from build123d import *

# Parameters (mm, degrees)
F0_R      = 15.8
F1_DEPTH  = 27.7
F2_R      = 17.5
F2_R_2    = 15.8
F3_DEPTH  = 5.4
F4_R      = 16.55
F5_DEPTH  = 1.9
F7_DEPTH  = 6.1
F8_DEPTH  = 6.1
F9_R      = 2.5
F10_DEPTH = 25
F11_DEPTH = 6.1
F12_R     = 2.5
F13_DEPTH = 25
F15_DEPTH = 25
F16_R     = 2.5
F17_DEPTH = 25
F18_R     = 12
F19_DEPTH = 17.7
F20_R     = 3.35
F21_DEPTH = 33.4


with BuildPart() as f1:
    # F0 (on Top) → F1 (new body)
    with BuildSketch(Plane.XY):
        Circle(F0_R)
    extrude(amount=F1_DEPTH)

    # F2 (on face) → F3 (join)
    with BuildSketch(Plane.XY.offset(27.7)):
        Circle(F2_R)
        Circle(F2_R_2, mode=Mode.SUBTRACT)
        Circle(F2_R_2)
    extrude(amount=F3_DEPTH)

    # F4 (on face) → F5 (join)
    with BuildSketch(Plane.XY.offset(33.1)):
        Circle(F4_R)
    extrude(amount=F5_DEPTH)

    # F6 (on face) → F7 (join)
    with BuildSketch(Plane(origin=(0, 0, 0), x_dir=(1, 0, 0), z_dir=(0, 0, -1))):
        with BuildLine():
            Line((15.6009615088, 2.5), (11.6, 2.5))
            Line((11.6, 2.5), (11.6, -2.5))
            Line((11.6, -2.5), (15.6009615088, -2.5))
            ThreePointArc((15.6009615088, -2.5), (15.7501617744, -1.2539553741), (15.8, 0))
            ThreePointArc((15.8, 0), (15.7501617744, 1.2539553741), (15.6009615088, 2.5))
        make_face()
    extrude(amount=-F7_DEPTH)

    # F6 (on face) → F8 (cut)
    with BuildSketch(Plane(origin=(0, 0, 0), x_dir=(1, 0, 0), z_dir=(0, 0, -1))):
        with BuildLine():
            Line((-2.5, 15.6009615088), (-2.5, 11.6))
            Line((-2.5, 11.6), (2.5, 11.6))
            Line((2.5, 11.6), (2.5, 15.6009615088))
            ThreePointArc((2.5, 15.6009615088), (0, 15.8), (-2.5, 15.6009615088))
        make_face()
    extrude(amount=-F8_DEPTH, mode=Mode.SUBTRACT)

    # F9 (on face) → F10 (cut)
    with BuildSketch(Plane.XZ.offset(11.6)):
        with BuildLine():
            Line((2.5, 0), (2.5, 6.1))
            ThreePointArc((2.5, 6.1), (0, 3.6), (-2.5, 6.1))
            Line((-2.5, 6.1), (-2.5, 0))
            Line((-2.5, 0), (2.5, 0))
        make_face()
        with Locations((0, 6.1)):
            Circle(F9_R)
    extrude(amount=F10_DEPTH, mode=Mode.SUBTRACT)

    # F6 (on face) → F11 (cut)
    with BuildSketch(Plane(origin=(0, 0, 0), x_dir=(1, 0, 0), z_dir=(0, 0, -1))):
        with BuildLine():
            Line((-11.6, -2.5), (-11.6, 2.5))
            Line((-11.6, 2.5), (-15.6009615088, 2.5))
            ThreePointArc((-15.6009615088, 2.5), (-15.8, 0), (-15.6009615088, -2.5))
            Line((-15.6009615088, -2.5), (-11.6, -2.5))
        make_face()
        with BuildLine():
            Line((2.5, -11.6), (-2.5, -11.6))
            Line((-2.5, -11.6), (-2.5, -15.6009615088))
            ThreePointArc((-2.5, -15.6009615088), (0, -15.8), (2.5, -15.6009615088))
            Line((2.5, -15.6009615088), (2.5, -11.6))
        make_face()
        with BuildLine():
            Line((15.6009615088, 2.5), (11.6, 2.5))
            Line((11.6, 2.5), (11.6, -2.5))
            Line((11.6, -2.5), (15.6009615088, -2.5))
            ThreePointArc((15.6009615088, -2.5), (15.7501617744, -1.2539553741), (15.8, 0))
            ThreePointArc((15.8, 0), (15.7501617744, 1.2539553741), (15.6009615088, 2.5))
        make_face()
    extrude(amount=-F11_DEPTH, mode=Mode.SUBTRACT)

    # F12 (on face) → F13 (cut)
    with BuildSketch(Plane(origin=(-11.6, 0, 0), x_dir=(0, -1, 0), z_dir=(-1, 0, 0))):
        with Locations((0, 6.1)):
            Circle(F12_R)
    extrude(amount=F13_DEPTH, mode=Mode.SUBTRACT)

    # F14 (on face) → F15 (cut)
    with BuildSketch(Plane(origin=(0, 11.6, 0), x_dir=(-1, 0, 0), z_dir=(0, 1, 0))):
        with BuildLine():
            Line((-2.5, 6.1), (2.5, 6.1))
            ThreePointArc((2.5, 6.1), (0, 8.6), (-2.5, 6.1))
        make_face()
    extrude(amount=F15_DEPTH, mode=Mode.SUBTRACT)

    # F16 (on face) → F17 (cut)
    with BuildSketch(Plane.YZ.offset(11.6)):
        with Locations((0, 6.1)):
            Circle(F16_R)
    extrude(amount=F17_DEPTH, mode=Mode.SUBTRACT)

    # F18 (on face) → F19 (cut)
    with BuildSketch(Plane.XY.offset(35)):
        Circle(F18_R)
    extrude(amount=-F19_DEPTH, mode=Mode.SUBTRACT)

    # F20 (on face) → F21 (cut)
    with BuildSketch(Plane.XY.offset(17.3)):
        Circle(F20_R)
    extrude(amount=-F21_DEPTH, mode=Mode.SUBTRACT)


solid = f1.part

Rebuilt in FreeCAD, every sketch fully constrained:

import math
import FreeCAD as App
import Part
import Sketcher
from FreeCAD import Vector
Q = App.Units.Quantity

doc = App.newDocument("Part")
body = doc.addObject("PartDesign::Body", "Body")

sketch1 = doc.addObject("Sketcher::SketchObject", "Sketch")
body.addObject(sketch1)
sketch1.AttachmentSupport = (doc.XY_Plane, [""])
sketch1.MapMode = "FlatFace"
sketch1.addGeometry(Part.Circle(Vector(0, 0, 0), Vector(0, 0, 1), 15.8), False)
sketch1.addConstraint([
    Sketcher.Constraint("Coincident", 0, 3, -1, 1),
    Sketcher.Constraint("Diameter", 0, Q("31.6 mm")),
])
pad1 = doc.addObject("PartDesign::Pad", "Pad")
body.addObject(pad1)
pad1.Profile = sketch1
pad1.Length = 27.7

sketch2 = doc.addObject("Sketcher::SketchObject", "Sketch001")
body.addObject(sketch2)
sketch2.AttachmentSupport = (doc.XY_Plane, [""])
sketch2.MapMode = "FlatFace"
sketch2.AttachmentOffset = App.Placement(Vector(0, 0, 27.7), App.Rotation())
sketch2.addGeometry(Part.Circle(Vector(0, 0, 0), Vector(0, 0, 1), 17.5), False)
sketch2.addConstraint([
    Sketcher.Constraint("Coincident", 0, 3, -1, 1),
    Sketcher.Constraint("Diameter", 0, Q("35 mm")),
])
pad2 = doc.addObject("PartDesign::Pad", "Pad001")
body.addObject(pad2)
pad2.Profile = sketch2
pad2.Length = 5.4

sketch3 = doc.addObject("Sketcher::SketchObject", "Sketch002")
body.addObject(sketch3)
sketch3.AttachmentSupport = (doc.XY_Plane, [""])
sketch3.MapMode = "FlatFace"
sketch3.AttachmentOffset = App.Placement(Vector(0, 0, 33.1), App.Rotation())
sketch3.addGeometry(Part.Circle(Vector(0, 0, 0), Vector(0, 0, 1), 16.55), False)
sketch3.addConstraint([
    Sketcher.Constraint("Coincident", 0, 3, -1, 1),
    Sketcher.Constraint("Diameter", 0, Q("33.1 mm")),
])
pad3 = doc.addObject("PartDesign::Pad", "Pad002")
body.addObject(pad3)
pad3.Profile = sketch3
pad3.Length = 1.9

sketch4 = doc.addObject("Sketcher::SketchObject", "Sketch003")
body.addObject(sketch4)
sketch4.AttachmentSupport = (doc.XY_Plane, [""])
sketch4.MapMode = "FlatFace"
sketch4.addGeometry([
    Part.LineSegment(Vector(15.600962, -2.5, 0), Vector(11.6, -2.5, 0)),
    Part.LineSegment(Vector(11.6, -2.5, 0), Vector(11.6, 2.5, 0)),
    Part.LineSegment(Vector(11.6, 2.5, 0), Vector(15.600962, 2.5, 0)),
    Part.ArcOfCircle(Part.Circle(Vector(0, 0, 0), Vector(0, 0, 1), 15.8), math.radians(0), math.radians(9.104049)),
    Part.ArcOfCircle(Part.Circle(Vector(0, 0, 0), Vector(0, 0, 1), 15.8), math.radians(-9.104049), math.radians(0)),
], False)
sketch4.addConstraint([
    Sketcher.Constraint("Coincident", 0, 2, 1, 1),
    Sketcher.Constraint("Coincident", 1, 2, 2, 1),
    Sketcher.Constraint("Coincident", 2, 2, 3, 2),
    Sketcher.Constraint("Tangent", 3, 1, 4, 2),
    Sketcher.Constraint("Coincident", 4, 1, 0, 1),
    Sketcher.Constraint("Horizontal", 0),
    Sketcher.Constraint("Vertical", 1),
    Sketcher.Constraint("Horizontal", 2),
    Sketcher.Constraint("Coincident", 3, 3, -1, 1),
    Sketcher.Constraint("Equal", 3, 4),
    Sketcher.Constraint("PointOnObject", 3, 1, -1),
    Sketcher.Constraint("Vertical", 2, 2, 4, 1),
    Sketcher.Constraint("Radius", 3, Q("15.8 mm")),
    Sketcher.Constraint("DistanceY", 1, 1, 1, 2, Q("5 mm")),
    Sketcher.Constraint("DistanceX", -1, 1, 0, 2, Q("11.6 mm")),
])
pad4 = doc.addObject("PartDesign::Pad", "Pad003")
body.addObject(pad4)
pad4.Profile = sketch4
pad4.Length = 6.1

sketch5 = doc.addObject("Sketcher::SketchObject", "Sketch004")
body.addObject(sketch5)
sketch5.AttachmentSupport = (doc.XY_Plane, [""])
sketch5.MapMode = "FlatFace"
sketch5.addGeometry([
    Part.LineSegment(Vector(-2.5, -15.600962, 0), Vector(-2.5, -11.6, 0)),
    Part.LineSegment(Vector(-2.5, -11.6, 0), Vector(2.5, -11.6, 0)),
    Part.LineSegment(Vector(2.5, -11.6, 0), Vector(2.5, -15.600962, 0)),
    Part.ArcOfCircle(Part.Circle(Vector(0, 0, 0), Vector(0, 0, 1), 15.8), math.radians(-99.104049), math.radians(-80.895951)),
], False)
sketch5.addConstraint([
    Sketcher.Constraint("Coincident", 0, 2, 1, 1),
    Sketcher.Constraint("Coincident", 1, 2, 2, 1),
    Sketcher.Constraint("Coincident", 2, 2, 3, 2),
    Sketcher.Constraint("Coincident", 3, 1, 0, 1),
    Sketcher.Constraint("Vertical", 0),
    Sketcher.Constraint("Horizontal", 1),
    Sketcher.Constraint("Vertical", 2),
    Sketcher.Constraint("Coincident", 3, 3, -1, 1),
    Sketcher.Constraint("Horizontal", 2, 2, 3, 1),
    Sketcher.Constraint("Radius", 3, Q("15.8 mm")),
    Sketcher.Constraint("DistanceX", 1, 1, 1, 2, Q("5 mm")),
    Sketcher.Constraint("DistanceY", 0, 2, -1, 1, Q("11.6 mm")),
])
pocket1 = doc.addObject("PartDesign::Pocket", "Pocket")
body.addObject(pocket1)
pocket1.Profile = sketch5
pocket1.Length = 6.1
pocket1.Reversed = True

sketch6 = doc.addObject("Sketcher::SketchObject", "Sketch005")
body.addObject(sketch6)
sketch6.AttachmentSupport = (doc.XZ_Plane, [""])
sketch6.MapMode = "FlatFace"
sketch6.AttachmentOffset = App.Placement(Vector(0, 0, 11.6), App.Rotation())
sketch6.addGeometry([
    Part.LineSegment(Vector(2.5, 0, 0), Vector(2.5, 6.1, 0)),
    Part.ArcOfCircle(Part.Circle(Vector(0, 6.1, 0), Vector(0, 0, 1), 2.5), math.radians(0), math.radians(180)),
    Part.LineSegment(Vector(-2.5, 6.1, 0), Vector(-2.5, 0, 0)),
    Part.LineSegment(Vector(-2.5, 0, 0), Vector(2.5, 0, 0)),
], False)
sketch6.addConstraint([
    Sketcher.Constraint("Tangent", 0, 2, 1, 1),
    Sketcher.Constraint("Tangent", 1, 2, 2, 1),
    Sketcher.Constraint("Coincident", 2, 2, 3, 1),
    Sketcher.Constraint("Coincident", 3, 2, 0, 1),
    Sketcher.Constraint("Vertical", 0),
    Sketcher.Constraint("Vertical", 2),
    Sketcher.Constraint("Horizontal", 3),
    Sketcher.Constraint("Symmetric", 2, 2, 3, 2, -1, 1),
    Sketcher.Constraint("Radius", 1, Q("2.5 mm")),
    Sketcher.Constraint("DistanceY", 0, 1, 0, 2, Q("6.1 mm")),
])
pocket2 = doc.addObject("PartDesign::Pocket", "Pocket001")
body.addObject(pocket2)
pocket2.Profile = sketch6
pocket2.Length = 25
pocket2.Reversed = True

sketch7 = doc.addObject("Sketcher::SketchObject", "Sketch006")
body.addObject(sketch7)
sketch7.AttachmentSupport = (doc.XY_Plane, [""])
sketch7.MapMode = "FlatFace"
sketch7.addGeometry([
    Part.LineSegment(Vector(-11.6, 2.5, 0), Vector(-11.6, -2.5, 0)),
    Part.LineSegment(Vector(-11.6, -2.5, 0), Vector(-15.600962, -2.5, 0)),
    Part.ArcOfCircle(Part.Circle(Vector(0, 0, 0), Vector(0, 0, 1), 15.8), math.radians(170.895951), math.radians(189.104049)),
    Part.LineSegment(Vector(-15.600962, 2.5, 0), Vector(-11.6, 2.5, 0)),
    Part.LineSegment(Vector(2.5, 11.6, 0), Vector(-2.5, 11.6, 0)),
    Part.LineSegment(Vector(-2.5, 11.6, 0), Vector(-2.5, 15.600962, 0)),
    Part.ArcOfCircle(Part.Circle(Vector(0, 0, 0), Vector(0, 0, 1), 15.8), math.radians(80.895951), math.radians(99.104049)),
    Part.LineSegment(Vector(2.5, 15.600962, 0), Vector(2.5, 11.6, 0)),
    Part.LineSegment(Vector(15.600962, -2.5, 0), Vector(11.6, -2.5, 0)),
    Part.LineSegment(Vector(11.6, -2.5, 0), Vector(11.6, 2.5, 0)),
    Part.LineSegment(Vector(11.6, 2.5, 0), Vector(15.600962, 2.5, 0)),
    Part.ArcOfCircle(Part.Circle(Vector(0, 0, 0), Vector(0, 0, 1), 15.8), math.radians(0), math.radians(9.104049)),
    Part.ArcOfCircle(Part.Circle(Vector(0, 0, 0), Vector(0, 0, 1), 15.8), math.radians(-9.104049), math.radians(0)),
], False)
sketch7.addConstraint([
    Sketcher.Constraint("Coincident", 0, 2, 1, 1),
    Sketcher.Constraint("Coincident", 1, 2, 2, 2),
    Sketcher.Constraint("Coincident", 2, 1, 3, 1),
    Sketcher.Constraint("Coincident", 3, 2, 0, 1),
    Sketcher.Constraint("Coincident", 4, 2, 5, 1),
    Sketcher.Constraint("Coincident", 5, 2, 6, 2),
    Sketcher.Constraint("Coincident", 6, 1, 7, 1),
    Sketcher.Constraint("Coincident", 7, 2, 4, 1),
    Sketcher.Constraint("Coincident", 8, 2, 9, 1),
    Sketcher.Constraint("Coincident", 9, 2, 10, 1),
    Sketcher.Constraint("Coincident", 10, 2, 11, 2),
    Sketcher.Constraint("Tangent", 11, 1, 12, 2),
    Sketcher.Constraint("Coincident", 12, 1, 8, 1),
    Sketcher.Constraint("Vertical", 0),
    Sketcher.Constraint("Horizontal", 1),
    Sketcher.Constraint("Horizontal", 3),
    Sketcher.Constraint("Horizontal", 4),
    Sketcher.Constraint("Vertical", 5),
    Sketcher.Constraint("Vertical", 7),
    Sketcher.Constraint("Horizontal", 8),
    Sketcher.Constraint("Vertical", 9),
    Sketcher.Constraint("Horizontal", 10),
    Sketcher.Constraint("Coincident", 2, 3, -1, 1),
    Sketcher.Constraint("Coincident", 6, 3, -1, 1),
    Sketcher.Constraint("Coincident", 11, 3, -1, 1),
    Sketcher.Constraint("Equal", 2, 6),
    Sketcher.Constraint("Equal", 6, 11),
    Sketcher.Constraint("Equal", 11, 12),
    Sketcher.Constraint("Symmetric", 3, 2, 8, 2, -1, 1),
    Sketcher.Constraint("PointOnObject", 11, 1, -1),
    Sketcher.Constraint("Horizontal", 5, 2, 6, 1),
    Sketcher.Constraint("Horizontal", 1, 2, 8, 2),
    Sketcher.Constraint("Horizontal", 3, 2, 9, 2),
    Sketcher.Constraint("Equal", 4, 0),
    Sketcher.Constraint("Equal", 10, 5),
    Sketcher.Constraint("Radius", 2, Q("15.8 mm")),
    Sketcher.Constraint("DistanceX", 4, 2, 4, 1, Q("5 mm")),
    Sketcher.Constraint("DistanceX", 0, 2, -1, 1, Q("11.6 mm")),
])
pocket3 = doc.addObject("PartDesign::Pocket", "Pocket002")
body.addObject(pocket3)
pocket3.Profile = sketch7
pocket3.Length = 6.1
pocket3.Reversed = True

sketch8 = doc.addObject("Sketcher::SketchObject", "Sketch007")
body.addObject(sketch8)
sketch8.AttachmentSupport = (doc.YZ_Plane, [""])
sketch8.MapMode = "FlatFace"
sketch8.AttachmentOffset = App.Placement(Vector(0, 0, -11.6), App.Rotation())
sketch8.addGeometry(Part.Circle(Vector(0, 6.1, 0), Vector(0, 0, 1), 2.5), False)
sketch8.addConstraint([
    Sketcher.Constraint("PointOnObject", 0, 3, -2),
    Sketcher.Constraint("Diameter", 0, Q("5 mm")),
    Sketcher.Constraint("DistanceY", -1, 1, 0, 3, Q("6.1 mm")),
])
pocket4 = doc.addObject("PartDesign::Pocket", "Pocket003")
body.addObject(pocket4)
pocket4.Profile = sketch8
pocket4.Length = 25

sketch9 = doc.addObject("Sketcher::SketchObject", "Sketch008")
body.addObject(sketch9)
sketch9.AttachmentSupport = (doc.XZ_Plane, [""])
sketch9.MapMode = "FlatFace"
sketch9.AttachmentOffset = App.Placement(Vector(0, 0, -11.6), App.Rotation())
sketch9.addGeometry([
    Part.LineSegment(Vector(2.5, 6.1, 0), Vector(-2.5, 6.1, 0)),
    Part.ArcOfCircle(Part.Circle(Vector(0, 6.1, 0), Vector(0, 0, 1), 2.5), math.radians(0), math.radians(180)),
], False)
sketch9.addConstraint([
    Sketcher.Constraint("Coincident", 0, 1, 1, 1),
    Sketcher.Constraint("Coincident", 1, 2, 0, 2),
    Sketcher.Constraint("Horizontal", 0),
    Sketcher.Constraint("PointOnObject", 1, 3, -2),
    Sketcher.Constraint("Horizontal", 1, 3, 0, 1),
    Sketcher.Constraint("Radius", 1, Q("2.5 mm")),
    Sketcher.Constraint("DistanceY", -1, 1, 1, 3, Q("6.1 mm")),
])
pocket5 = doc.addObject("PartDesign::Pocket", "Pocket004")
body.addObject(pocket5)
pocket5.Profile = sketch9
pocket5.Length = 25

sketch10 = doc.addObject("Sketcher::SketchObject", "Sketch009")
body.addObject(sketch10)
sketch10.AttachmentSupport = (doc.YZ_Plane, [""])
sketch10.MapMode = "FlatFace"
sketch10.AttachmentOffset = App.Placement(Vector(0, 0, 11.6), App.Rotation())
sketch10.addGeometry(Part.Circle(Vector(0, 6.1, 0), Vector(0, 0, 1), 2.5), False)
sketch10.addConstraint([
    Sketcher.Constraint("PointOnObject", 0, 3, -2),
    Sketcher.Constraint("Diameter", 0, Q("5 mm")),
    Sketcher.Constraint("DistanceY", -1, 1, 0, 3, Q("6.1 mm")),
])
pocket6 = doc.addObject("PartDesign::Pocket", "Pocket005")
body.addObject(pocket6)
pocket6.Profile = sketch10
pocket6.Length = 25
pocket6.Reversed = True

sketch11 = doc.addObject("Sketcher::SketchObject", "Sketch010")
body.addObject(sketch11)
sketch11.AttachmentSupport = (doc.XY_Plane, [""])
sketch11.MapMode = "FlatFace"
sketch11.AttachmentOffset = App.Placement(Vector(0, 0, 35), App.Rotation())
sketch11.addGeometry(Part.Circle(Vector(0, 0, 0), Vector(0, 0, 1), 12), False)
sketch11.addConstraint([
    Sketcher.Constraint("Coincident", 0, 3, -1, 1),
    Sketcher.Constraint("Diameter", 0, Q("24 mm")),
])
pocket7 = doc.addObject("PartDesign::Pocket", "Pocket006")
body.addObject(pocket7)
pocket7.Profile = sketch11
pocket7.Length = 17.7

sketch12 = doc.addObject("Sketcher::SketchObject", "Sketch011")
body.addObject(sketch12)
sketch12.AttachmentSupport = (doc.XY_Plane, [""])
sketch12.MapMode = "FlatFace"
sketch12.AttachmentOffset = App.Placement(Vector(0, 0, 17.3), App.Rotation())
sketch12.addGeometry(Part.Circle(Vector(0, 0, 0), Vector(0, 0, 1), 3.35), False)
sketch12.addConstraint([
    Sketcher.Constraint("Coincident", 0, 3, -1, 1),
    Sketcher.Constraint("Diameter", 0, Q("6.7 mm")),
])
pocket8 = doc.addObject("PartDesign::Pocket", "Pocket007")
body.addObject(pocket8)
pocket8.Profile = sketch12
pocket8.Length = 33.4

doc.recompute()
